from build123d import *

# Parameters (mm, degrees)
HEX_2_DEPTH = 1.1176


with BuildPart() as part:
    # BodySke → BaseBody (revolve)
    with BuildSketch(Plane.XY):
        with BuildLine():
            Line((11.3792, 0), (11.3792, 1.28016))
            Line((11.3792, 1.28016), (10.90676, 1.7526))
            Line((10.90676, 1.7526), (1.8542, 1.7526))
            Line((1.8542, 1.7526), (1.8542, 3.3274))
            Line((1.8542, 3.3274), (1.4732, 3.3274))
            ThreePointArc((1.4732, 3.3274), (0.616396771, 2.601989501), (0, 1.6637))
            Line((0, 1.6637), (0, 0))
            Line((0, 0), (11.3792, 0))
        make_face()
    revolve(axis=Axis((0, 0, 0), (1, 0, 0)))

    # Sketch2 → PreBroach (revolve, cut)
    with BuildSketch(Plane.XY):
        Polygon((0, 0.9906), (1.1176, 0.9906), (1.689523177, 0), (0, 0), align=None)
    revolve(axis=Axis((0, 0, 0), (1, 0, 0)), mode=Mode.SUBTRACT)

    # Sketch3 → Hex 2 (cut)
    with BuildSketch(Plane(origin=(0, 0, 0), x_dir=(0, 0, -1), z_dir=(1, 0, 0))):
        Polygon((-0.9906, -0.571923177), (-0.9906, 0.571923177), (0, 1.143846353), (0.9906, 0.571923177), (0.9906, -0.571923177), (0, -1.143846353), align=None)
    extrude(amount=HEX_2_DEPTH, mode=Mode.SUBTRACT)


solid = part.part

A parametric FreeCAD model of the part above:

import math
import FreeCAD as App
import Part
import Sketcher
Q = App.Units.Quantity


def add_polygon(sketch, points):
    """Adds a closed chain of lines whose ends are joined by coincident constraints."""
    first, n = sketch.GeometryCount, len(points)
    for a, b in zip(points, points[1:] + points[:1]):
        sketch.addGeometry(Part.LineSegment(App.Vector(*a, 0), App.Vector(*b, 0)), False)
    for i in range(n):
        sketch.addConstraint(Sketcher.Constraint("Coincident", first + i, 2, first + (i + 1) % n, 1))

doc = App.newDocument("Part")
body = doc.addObject("PartDesign::Body", "Body")

# Sketch on XY plane
sketch1 = body.newObject("Sketcher::SketchObject", "Sketch")
sketch1.AttachmentSupport = (doc.getObject("XY_Plane"), [""])
sketch1.MapMode = "FlatFace"
sketch1.addGeometry([
    Part.LineSegment(App.Vector(11.38, 0, 0), App.Vector(11.38, 1.28, 0)),  # 0
    Part.LineSegment(App.Vector(11.38, 1.28, 0), App.Vector(10.91, 1.75, 0)),  # 1
    Part.LineSegment(App.Vector(10.91, 1.75, 0), App.Vector(1.85, 1.75, 0)),  # 2
    Part.LineSegment(App.Vector(1.85, 1.75, 0), App.Vector(1.85, 3.33, 0)),  # 3
    Part.LineSegment(App.Vector(1.85, 3.33, 0), App.Vector(1.47, 3.33, 0)),  # 4
    Part.ArcOfCircle(Part.Circle(App.Vector(3.55, 0, 0), App.Vector(0, 0, 1), 3.92), math.radians(122), math.radians(155)),  # 5
    Part.LineSegment(App.Vector(0, 1.66, 0), App.Vector(0, 0, 0)),  # 6
    Part.LineSegment(App.Vector(0, 0, 0), App.Vector(11.38, 0, 0)),  # 7
], False)
sketch1.addConstraint([
    Sketcher.Constraint("Coincident", 0, 2, 1, 1),
    Sketcher.Constraint("Coincident", 1, 2, 2, 1),
    Sketcher.Constraint("Coincident", 2, 2, 3, 1),
    Sketcher.Constraint("Coincident", 3, 2, 4, 1),
    Sketcher.Constraint("Coincident", 4, 2, 5, 1),
    Sketcher.Constraint("Coincident", 5, 2, 6, 1),
    Sketcher.Constraint("Coincident", 6, 2, 7, 1),
    Sketcher.Constraint("Coincident", 7, 2, 0, 1),
    Sketcher.Constraint("Vertical", 0),
    Sketcher.Constraint("Horizontal", 2),
    Sketcher.Constraint("Vertical", 3),
    Sketcher.Constraint("Horizontal", 4),
    Sketcher.Constraint("Vertical", 6),
    Sketcher.Constraint("Horizontal", 7),
    Sketcher.Constraint("Coincident", 6, 2, -1, 1),
    Sketcher.Constraint("PointOnObject", 5, 3, -1),
    Sketcher.Constraint("Angle", 1, Q("135 deg")),
    Sketcher.Constraint("DistanceX", 4, 2, 4, 1, Q("0.015 in")),
    Sketcher.Constraint("DistanceX", 7, 1, 7, 2, Q("0.448 in")),
    Sketcher.Constraint("DistanceY", 3, 1, 3, 2, Q("0.062 in")),
    Sketcher.Constraint("DistanceX", 4, 2, 0, 2, Q("0.39 in")),
    Sketcher.Constraint("DistanceX", 2, 2, 2, 1, Q("0.3564 in")),
    Sketcher.Constraint("DistanceY", 0, 1, 0, 2, Q("0.0504 in")),
    Sketcher.Constraint("DistanceY", 6, 2, 6, 1, Q("0.0655 in")),
])
revolution = body.newObject("PartDesign::Revolution", "Revolution")
revolution.Profile = sketch1
revolution.ReferenceAxis = (sketch1, ["H_Axis"])
revolution.Angle = 360

# Sketch on XY plane
sketch2 = body.newObject("Sketcher::SketchObject", "Sketch001")
sketch2.AttachmentSupport = (doc.getObject("XY_Plane"), [""])
sketch2.MapMode = "FlatFace"
add_polygon(sketch2, [(1.1, 1), (0, 1), (0, 0), (1.7, 0)])  # lines 0-3
sketch2.addConstraint([
    Sketcher.Constraint("Horizontal", 0),
    Sketcher.Constraint("Vertical", 1),
    Sketcher.Constraint("Horizontal", 2),
    Sketcher.Constraint("Coincident", 1, 2, -1, 1),
    Sketcher.Constraint("Angle", 3, Q("120 deg")),
    Sketcher.Constraint("DistanceX", 0, 2, 0, 1, Q("0.044 in")),
    Sketcher.Constraint("DistanceY", 1, 2, 1, 1, Q("0.039 in")),
])
groove = body.newObject("PartDesign::Groove", "Groove")
groove.Profile = sketch2
groove.ReferenceAxis = (sketch2, ["H_Axis"])
groove.Angle = 360

# Sketch on YZ plane
sketch3 = body.newObject("Sketcher::SketchObject", "Sketch002")
sketch3.AttachmentSupport = (doc.getObject("YZ_Plane"), [""])
sketch3.MapMode = "FlatFace"
add_polygon(sketch3, [(0.6, 1), (-0.6, 1), (-1.1, 0), (-0.6, -1), (0.6, -1), (1.1, 0)])  # lines 0-5
sketch3.addConstraint([
    Sketcher.Constraint("Horizontal", 0),
    Sketcher.Constraint("Horizontal", 3),
    Sketcher.Constraint("Symmetric", 0, 2, 3, 2, -1, 1),
    Sketcher.Constraint("Symmetric", 1, 2, 4, 2, -1, 1),
    Sketcher.Constraint("PointOnObject", 1, 2, -1),
    Sketcher.Constraint("Parallel", 2, 5),
    Sketcher.Constraint("Vertical", 0, 2, 2, 2),
    Sketcher.Constraint("Angle", 1, Q("-120 deg")),
    Sketcher.Constraint("DistanceY", -1, 1, 0, 2, Q("0.039 in")),
    Sketcher.Constraint("DistanceX", 0, 2, 0, 1, 1.143846),
])
pocket1 = body.newObject("PartDesign::Pocket", "Pocket")
pocket1.Profile = sketch3
pocket1.Length = Q("0.044 in")
pocket1.Reversed = True

doc.recompute()
